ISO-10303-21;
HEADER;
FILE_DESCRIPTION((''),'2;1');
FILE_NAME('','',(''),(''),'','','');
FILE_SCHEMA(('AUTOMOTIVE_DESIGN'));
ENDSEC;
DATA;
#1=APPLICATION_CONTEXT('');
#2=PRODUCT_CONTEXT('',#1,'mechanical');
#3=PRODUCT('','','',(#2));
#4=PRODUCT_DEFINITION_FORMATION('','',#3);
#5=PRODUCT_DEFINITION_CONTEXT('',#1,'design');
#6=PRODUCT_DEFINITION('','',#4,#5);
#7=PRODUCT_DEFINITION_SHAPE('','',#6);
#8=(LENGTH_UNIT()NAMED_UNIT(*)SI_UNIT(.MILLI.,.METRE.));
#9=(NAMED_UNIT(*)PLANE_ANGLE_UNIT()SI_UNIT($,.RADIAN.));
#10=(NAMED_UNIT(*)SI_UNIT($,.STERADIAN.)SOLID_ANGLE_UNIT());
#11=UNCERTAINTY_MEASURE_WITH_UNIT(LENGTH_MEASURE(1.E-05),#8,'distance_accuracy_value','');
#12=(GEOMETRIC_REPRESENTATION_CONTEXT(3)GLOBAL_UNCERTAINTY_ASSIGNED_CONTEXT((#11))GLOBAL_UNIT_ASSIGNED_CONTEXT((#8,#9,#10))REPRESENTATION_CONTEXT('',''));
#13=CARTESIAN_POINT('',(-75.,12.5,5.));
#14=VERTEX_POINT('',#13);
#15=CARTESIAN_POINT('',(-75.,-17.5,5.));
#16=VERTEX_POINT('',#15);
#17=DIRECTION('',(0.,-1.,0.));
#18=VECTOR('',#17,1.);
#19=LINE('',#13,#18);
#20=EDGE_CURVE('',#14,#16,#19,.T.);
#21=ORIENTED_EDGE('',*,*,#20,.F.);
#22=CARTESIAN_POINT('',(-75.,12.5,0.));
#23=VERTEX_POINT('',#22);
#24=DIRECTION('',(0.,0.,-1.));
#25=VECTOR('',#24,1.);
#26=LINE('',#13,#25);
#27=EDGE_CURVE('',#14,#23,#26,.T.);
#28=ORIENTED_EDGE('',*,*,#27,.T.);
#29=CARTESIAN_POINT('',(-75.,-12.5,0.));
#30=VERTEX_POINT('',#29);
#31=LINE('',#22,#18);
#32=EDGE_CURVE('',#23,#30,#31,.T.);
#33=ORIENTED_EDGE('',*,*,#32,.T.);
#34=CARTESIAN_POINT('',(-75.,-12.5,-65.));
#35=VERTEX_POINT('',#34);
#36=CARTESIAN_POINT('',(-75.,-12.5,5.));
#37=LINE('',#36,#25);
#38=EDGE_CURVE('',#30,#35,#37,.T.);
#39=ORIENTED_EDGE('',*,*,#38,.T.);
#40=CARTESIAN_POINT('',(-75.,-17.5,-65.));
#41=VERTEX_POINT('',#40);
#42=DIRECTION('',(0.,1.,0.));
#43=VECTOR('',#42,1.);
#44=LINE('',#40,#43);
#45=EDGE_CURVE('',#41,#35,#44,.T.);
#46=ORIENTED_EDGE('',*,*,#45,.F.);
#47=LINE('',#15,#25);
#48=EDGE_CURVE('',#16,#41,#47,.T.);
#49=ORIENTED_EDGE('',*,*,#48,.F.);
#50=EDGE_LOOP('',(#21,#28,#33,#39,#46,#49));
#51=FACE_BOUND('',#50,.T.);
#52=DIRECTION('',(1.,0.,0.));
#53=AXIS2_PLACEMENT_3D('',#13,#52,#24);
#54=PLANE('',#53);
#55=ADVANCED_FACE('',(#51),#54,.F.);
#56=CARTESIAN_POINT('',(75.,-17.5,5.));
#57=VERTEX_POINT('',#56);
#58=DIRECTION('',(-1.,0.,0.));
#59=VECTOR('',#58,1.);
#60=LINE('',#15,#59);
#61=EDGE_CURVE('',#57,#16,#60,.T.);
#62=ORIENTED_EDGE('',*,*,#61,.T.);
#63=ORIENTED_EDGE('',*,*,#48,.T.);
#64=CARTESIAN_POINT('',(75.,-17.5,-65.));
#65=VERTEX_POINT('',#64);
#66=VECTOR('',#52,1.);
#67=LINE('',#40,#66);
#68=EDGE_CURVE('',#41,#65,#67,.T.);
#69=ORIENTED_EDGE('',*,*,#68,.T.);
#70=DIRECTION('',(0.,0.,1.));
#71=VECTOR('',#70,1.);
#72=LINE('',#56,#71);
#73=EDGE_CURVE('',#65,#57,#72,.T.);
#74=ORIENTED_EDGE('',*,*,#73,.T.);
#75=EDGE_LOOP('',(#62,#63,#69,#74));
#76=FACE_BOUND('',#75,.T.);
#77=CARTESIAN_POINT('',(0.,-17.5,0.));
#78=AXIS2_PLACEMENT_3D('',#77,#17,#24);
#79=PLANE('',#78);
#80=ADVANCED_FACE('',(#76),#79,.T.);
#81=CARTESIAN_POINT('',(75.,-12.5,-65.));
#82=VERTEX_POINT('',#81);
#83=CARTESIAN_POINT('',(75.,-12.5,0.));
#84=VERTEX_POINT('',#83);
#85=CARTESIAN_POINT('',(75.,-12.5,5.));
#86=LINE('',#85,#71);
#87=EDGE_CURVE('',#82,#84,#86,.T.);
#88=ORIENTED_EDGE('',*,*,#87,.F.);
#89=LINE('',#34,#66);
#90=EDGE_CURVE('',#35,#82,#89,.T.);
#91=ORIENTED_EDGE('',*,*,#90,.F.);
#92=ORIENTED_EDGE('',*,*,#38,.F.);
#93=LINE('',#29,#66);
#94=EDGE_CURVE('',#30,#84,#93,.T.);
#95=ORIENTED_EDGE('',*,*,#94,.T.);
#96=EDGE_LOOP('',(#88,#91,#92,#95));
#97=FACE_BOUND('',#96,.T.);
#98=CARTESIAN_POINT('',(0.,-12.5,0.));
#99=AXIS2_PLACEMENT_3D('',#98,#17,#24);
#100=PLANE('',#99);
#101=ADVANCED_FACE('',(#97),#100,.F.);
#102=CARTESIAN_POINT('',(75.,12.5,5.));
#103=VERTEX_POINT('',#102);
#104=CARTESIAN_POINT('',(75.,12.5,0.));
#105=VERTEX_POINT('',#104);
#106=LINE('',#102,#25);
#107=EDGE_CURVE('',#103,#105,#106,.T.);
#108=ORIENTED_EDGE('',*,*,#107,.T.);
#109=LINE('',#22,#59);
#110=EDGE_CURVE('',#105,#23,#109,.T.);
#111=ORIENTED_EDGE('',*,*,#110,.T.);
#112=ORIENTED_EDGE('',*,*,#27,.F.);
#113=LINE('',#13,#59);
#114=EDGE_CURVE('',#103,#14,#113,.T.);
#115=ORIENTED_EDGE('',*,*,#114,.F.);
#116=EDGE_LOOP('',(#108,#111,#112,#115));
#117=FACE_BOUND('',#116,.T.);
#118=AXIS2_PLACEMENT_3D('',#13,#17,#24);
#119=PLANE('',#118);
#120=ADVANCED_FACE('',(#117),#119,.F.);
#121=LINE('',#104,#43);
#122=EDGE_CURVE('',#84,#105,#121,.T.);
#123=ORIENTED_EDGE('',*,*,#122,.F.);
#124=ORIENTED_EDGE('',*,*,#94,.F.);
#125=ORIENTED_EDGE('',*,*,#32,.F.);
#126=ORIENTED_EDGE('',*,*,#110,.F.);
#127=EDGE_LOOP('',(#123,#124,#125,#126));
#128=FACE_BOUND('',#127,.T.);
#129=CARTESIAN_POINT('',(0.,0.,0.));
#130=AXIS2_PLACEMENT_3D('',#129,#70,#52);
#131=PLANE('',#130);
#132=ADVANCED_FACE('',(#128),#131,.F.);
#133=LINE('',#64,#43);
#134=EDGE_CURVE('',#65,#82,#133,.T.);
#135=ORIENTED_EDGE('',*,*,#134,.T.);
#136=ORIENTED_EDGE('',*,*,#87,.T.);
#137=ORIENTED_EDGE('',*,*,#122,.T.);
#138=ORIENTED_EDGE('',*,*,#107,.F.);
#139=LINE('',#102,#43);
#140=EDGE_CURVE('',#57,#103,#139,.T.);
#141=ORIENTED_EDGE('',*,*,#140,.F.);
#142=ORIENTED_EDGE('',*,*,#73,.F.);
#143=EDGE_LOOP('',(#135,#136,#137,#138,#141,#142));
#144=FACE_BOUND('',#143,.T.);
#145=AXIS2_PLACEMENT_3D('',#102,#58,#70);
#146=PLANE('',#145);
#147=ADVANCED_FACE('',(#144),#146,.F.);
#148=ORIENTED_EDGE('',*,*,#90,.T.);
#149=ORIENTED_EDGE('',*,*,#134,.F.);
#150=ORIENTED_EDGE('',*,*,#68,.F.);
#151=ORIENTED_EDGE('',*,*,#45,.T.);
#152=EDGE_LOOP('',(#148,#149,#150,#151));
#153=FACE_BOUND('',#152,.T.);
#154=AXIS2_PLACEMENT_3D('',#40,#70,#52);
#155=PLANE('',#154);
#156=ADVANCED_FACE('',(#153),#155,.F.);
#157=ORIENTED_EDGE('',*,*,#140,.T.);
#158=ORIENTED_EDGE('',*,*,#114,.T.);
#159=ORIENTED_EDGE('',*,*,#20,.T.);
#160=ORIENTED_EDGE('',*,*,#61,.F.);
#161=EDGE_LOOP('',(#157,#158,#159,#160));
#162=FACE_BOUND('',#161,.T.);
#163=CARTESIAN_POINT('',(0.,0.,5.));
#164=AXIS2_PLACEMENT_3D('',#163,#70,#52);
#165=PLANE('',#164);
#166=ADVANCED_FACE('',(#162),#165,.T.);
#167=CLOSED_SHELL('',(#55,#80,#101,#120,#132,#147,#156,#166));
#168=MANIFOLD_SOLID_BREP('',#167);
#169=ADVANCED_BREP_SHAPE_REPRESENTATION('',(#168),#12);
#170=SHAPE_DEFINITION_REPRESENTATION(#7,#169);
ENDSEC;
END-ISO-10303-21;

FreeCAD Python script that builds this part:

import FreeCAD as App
import Part
import Sketcher

V = App.Vector
Q = App.Units.Quantity

doc = App.newDocument("Part")
params = doc.addObject("Spreadsheet::Sheet", "Params")
for row, (alias, value) in enumerate([
    ("sketch1_width", "150 mm"),
    ("sketch1_height", "25 mm"),
    ("pad1_length", "5 mm"),
    ("sketch2_width", "150 mm"),
    ("sketch2_height", "70 mm"),
    ("pad2_length", "5 mm"),
], start=1):
    params.set(f"A{row}", alias)
    params.set(f"B{row}", "=" + value)
    params.setAlias(f"B{row}", alias)

body = doc.addObject("PartDesign::Body", "Body")

sketch1 = body.newObject("Sketcher::SketchObject", "Sketch")
sketch1.AttachmentSupport = (doc.getObject("XY_Plane"), [""])
sketch1.MapMode = "FlatFace"
sketch1.addGeometry(Part.LineSegment(V(-75, 12, 0), V(-75, -12, 0)), False)
sketch1.addGeometry(Part.LineSegment(V(-75, -12, 0), V(75, -12, 0)), False)
sketch1.addGeometry(Part.LineSegment(V(75, -12, 0), V(75, 12, 0)), False)
sketch1.addGeometry(Part.LineSegment(V(75, 12, 0), V(-75, 12, 0)), False)
sketch1.addConstraint(Sketcher.Constraint("Coincident", 0, 2, 1, 1))
sketch1.addConstraint(Sketcher.Constraint("Coincident", 1, 2, 2, 1))
sketch1.addConstraint(Sketcher.Constraint("Coincident", 2, 2, 3, 1))
sketch1.addConstraint(Sketcher.Constraint("Coincident", 3, 2, 0, 1))
sketch1.addConstraint(Sketcher.Constraint("Vertical", 0))
sketch1.addConstraint(Sketcher.Constraint("Horizontal", 1))
sketch1.addConstraint(Sketcher.Constraint("Vertical", 2))
sketch1.addConstraint(Sketcher.Constraint("Horizontal", 3))
sketch1.addConstraint(Sketcher.Constraint("Symmetric", 0, 2, 2, 2, -1, 1))
sketch1.addConstraint(Sketcher.Constraint("DistanceX", 1, 1, 1, 2, Q("150 mm")))
sketch1.addConstraint(Sketcher.Constraint("DistanceY", 0, 2, 0, 1, Q("25 mm")))
sketch1.setExpression("Constraints[9]", "Params.sketch1_width")
sketch1.setExpression("Constraints[10]", "Params.sketch1_height")
pad1 = body.newObject("PartDesign::Pad", "Pad")
pad1.Profile = sketch1
pad1.setExpression("Length", "Params.pad1_length")

sketch2 = body.newObject("Sketcher::SketchObject", "Sketch001")
sketch2.AttachmentSupport = (doc.getObject("XZ_Plane"), [""])
sketch2.MapMode = "FlatFace"
sketch2.AttachmentOffset = App.Placement(V(0, 0, 12.5), App.Rotation())
sketch2.addGeometry(Part.LineSegment(V(-75, 5, 0), V(-75, -65, 0)), False)
sketch2.addGeometry(Part.LineSegment(V(-75, -65, 0), V(75, -65, 0)), False)
sketch2.addGeometry(Part.LineSegment(V(75, -65, 0), V(75, 5, 0)), False)
sketch2.addGeometry(Part.LineSegment(V(75, 5, 0), V(-75, 5, 0)), False)
sketch2.addConstraint(Sketcher.Constraint("Coincident", 0, 2, 1, 1))
sketch2.addConstraint(Sketcher.Constraint("Coincident", 1, 2, 2, 1))
sketch2.addConstraint(Sketcher.Constraint("Coincident", 2, 2, 3, 1))
sketch2.addConstraint(Sketcher.Constraint("Coincident", 3, 2, 0, 1))
sketch2.addConstraint(Sketcher.Constraint("Vertical", 0))
sketch2.addConstraint(Sketcher.Constraint("Horizontal", 1))
sketch2.addConstraint(Sketcher.Constraint("Vertical", 2))
sketch2.addConstraint(Sketcher.Constraint("Horizontal", 3))
sketch2.addConstraint(Sketcher.Constraint("DistanceX", 1, 1, 1, 2, Q("150 mm")))
sketch2.addConstraint(Sketcher.Constraint("DistanceY", 0, 2, 0, 1, Q("70 mm")))
sketch2.addConstraint(Sketcher.Constraint("DistanceX", 0, 2, -1, 1, Q("75 mm")))
sketch2.addConstraint(Sketcher.Constraint("DistanceY", 0, 2, -1, 1, Q("65 mm")))
sketch2.setExpression("Constraints[8]", "Params.sketch2_width")
sketch2.setExpression("Constraints[9]", "Params.sketch2_height")
pad2 = body.newObject("PartDesign::Pad", "Pad001")
pad2.Profile = sketch2
pad2.setExpression("Length", "Params.pad2_length")

doc.recompute()
